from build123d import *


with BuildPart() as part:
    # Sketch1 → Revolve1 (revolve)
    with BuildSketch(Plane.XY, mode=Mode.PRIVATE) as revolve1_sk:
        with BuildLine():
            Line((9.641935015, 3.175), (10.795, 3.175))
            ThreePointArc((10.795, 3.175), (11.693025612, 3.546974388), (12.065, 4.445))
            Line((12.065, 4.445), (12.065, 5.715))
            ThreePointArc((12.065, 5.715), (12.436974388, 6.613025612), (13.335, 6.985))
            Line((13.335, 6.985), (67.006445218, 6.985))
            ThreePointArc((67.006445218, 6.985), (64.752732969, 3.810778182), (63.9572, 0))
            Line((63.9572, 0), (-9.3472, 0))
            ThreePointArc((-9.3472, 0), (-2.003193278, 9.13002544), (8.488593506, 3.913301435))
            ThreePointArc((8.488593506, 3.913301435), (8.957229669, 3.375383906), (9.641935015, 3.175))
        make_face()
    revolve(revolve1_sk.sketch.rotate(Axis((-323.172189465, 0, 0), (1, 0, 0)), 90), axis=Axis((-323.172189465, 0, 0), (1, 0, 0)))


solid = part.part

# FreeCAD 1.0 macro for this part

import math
import FreeCAD as App
import Part
import Sketcher
Q = App.Units.Quantity

doc = App.newDocument("Part")
body = doc.addObject("PartDesign::Body", "Body")

# Sketch on XY plane
sketch1 = doc.addObject("Sketcher::SketchObject", "Sketch")
body.addObject(sketch1)
sketch1.AttachmentSupport = (doc.XY_Plane, [""])
sketch1.MapMode = "FlatFace"
sketch1.addGeometry(Part.LineSegment(App.Vector(10.8, 3.2, 0), App.Vector(9.6, 3.2, 0)), False)
sketch1.addGeometry(Part.ArcOfCircle(Part.Circle(App.Vector(9.6, 4.4, 0), App.Vector(0, 0, 1), 1.3), math.radians(-155), math.radians(-90)), False)
sketch1.addGeometry(Part.ArcOfCircle(Part.Circle(App.Vector(0, 0, 0), App.Vector(0, 0, 1), 9.3), math.radians(25), math.radians(180)), False)
sketch1.addGeometry(Part.LineSegment(App.Vector(-9.3, 0, 0), App.Vector(64, 0, 0)), False)
sketch1.addGeometry(Part.ArcOfCircle(Part.Circle(App.Vector(73.5, 0, 0), App.Vector(0, 0, 1), 9.5), math.radians(133), math.radians(180)), False)
sketch1.addGeometry(Part.LineSegment(App.Vector(67, 7, 0), App.Vector(13.3, 7, 0)), False)
sketch1.addGeometry(Part.ArcOfCircle(Part.Circle(App.Vector(13.3, 5.7, 0), App.Vector(0, 0, 1), 1.3), math.radians(90), math.radians(180)), False)
sketch1.addGeometry(Part.LineSegment(App.Vector(12.1, 5.7, 0), App.Vector(12.1, 4.4, 0)), False)
sketch1.addGeometry(Part.ArcOfCircle(Part.Circle(App.Vector(10.8, 4.4, 0), App.Vector(0, 0, 1), 1.3), math.radians(-90), math.radians(0)), False)
sketch1.addConstraint(Sketcher.Constraint("Tangent", 0, 2, 1, 2))
sketch1.addConstraint(Sketcher.Constraint("Tangent", 1, 1, 2, 1))
sketch1.addConstraint(Sketcher.Constraint("Coincident", 2, 2, 3, 1))
sketch1.addConstraint(Sketcher.Constraint("Coincident", 3, 2, 4, 2))
sketch1.addConstraint(Sketcher.Constraint("Coincident", 4, 1, 5, 1))
sketch1.addConstraint(Sketcher.Constraint("Tangent", 5, 2, 6, 1))
sketch1.addConstraint(Sketcher.Constraint("Tangent", 6, 2, 7, 1))
sketch1.addConstraint(Sketcher.Constraint("Tangent", 7, 2, 8, 2))
sketch1.addConstraint(Sketcher.Constraint("Tangent", 8, 1, 0, 1))
sketch1.addConstraint(Sketcher.Constraint("Horizontal", 0))
sketch1.addConstraint(Sketcher.Constraint("Horizontal", 3))
sketch1.addConstraint(Sketcher.Constraint("Horizontal", 5))
sketch1.addConstraint(Sketcher.Constraint("Vertical", 7))
sketch1.addConstraint(Sketcher.Constraint("Coincident", 2, 3, -1, 1))
sketch1.addConstraint(Sketcher.Constraint("Equal", 1, 6))
sketch1.addConstraint(Sketcher.Constraint("Equal", 6, 8))
sketch1.addConstraint(Sketcher.Constraint("PointOnObject", 4, 3, -1))
sketch1.addConstraint(Sketcher.Constraint("PointOnObject", 2, 2, -1))
sketch1.addConstraint(Sketcher.Constraint("Radius", 1, Q("0.05 in")))
sketch1.addConstraint(Sketcher.Constraint("Radius", 2, Q("0.368 in")))
sketch1.addConstraint(Sketcher.Constraint("Radius", 4, Q("0.375 in")))
sketch1.addConstraint(Sketcher.Constraint("DistanceY", 7, 2, 7, 1, Q("0.05 in")))
sketch1.addConstraint(Sketcher.Constraint("DistanceX", 3, 1, 3, 2, Q("2.886 in")))
sketch1.addConstraint(Sketcher.Constraint("DistanceY", -1, 1, 1, 3, Q("0.175 in")))
sketch1.addConstraint(Sketcher.Constraint("DistanceX", -1, 1, 6, 3, Q("0.525 in")))
revolution = doc.addObject("PartDesign::Revolution", "Revolution")
body.addObject(revolution)
revolution.Profile = sketch1
revolution.ReferenceAxis = (sketch1, ["H_Axis"])
revolution.Angle = 360

doc.recompute()
